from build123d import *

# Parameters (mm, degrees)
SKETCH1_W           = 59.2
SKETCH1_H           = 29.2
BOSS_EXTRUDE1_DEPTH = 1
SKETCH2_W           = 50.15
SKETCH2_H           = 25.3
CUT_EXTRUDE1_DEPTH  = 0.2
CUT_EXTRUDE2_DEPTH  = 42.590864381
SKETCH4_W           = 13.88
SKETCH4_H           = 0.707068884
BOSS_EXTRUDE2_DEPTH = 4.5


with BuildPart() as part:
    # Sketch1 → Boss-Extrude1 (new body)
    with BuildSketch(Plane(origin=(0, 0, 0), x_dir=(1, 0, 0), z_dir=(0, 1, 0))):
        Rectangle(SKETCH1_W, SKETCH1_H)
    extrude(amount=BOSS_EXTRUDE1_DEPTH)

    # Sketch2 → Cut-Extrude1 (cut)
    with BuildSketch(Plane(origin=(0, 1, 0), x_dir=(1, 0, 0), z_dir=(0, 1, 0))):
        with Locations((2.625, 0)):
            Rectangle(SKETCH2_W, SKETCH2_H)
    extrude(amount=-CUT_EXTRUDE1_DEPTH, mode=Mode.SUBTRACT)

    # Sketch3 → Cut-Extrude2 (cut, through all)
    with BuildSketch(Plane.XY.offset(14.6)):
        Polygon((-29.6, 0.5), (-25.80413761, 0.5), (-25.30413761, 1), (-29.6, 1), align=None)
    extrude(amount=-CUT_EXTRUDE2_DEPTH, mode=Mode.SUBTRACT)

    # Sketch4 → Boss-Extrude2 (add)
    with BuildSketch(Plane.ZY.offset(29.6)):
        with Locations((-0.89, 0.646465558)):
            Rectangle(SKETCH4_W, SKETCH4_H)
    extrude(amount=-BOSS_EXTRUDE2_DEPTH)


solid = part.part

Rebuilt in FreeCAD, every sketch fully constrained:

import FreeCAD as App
import Part
import Sketcher

V = App.Vector
Q = App.Units.Quantity


def add_polygon(sketch, points):
    """Adds a closed chain of lines whose ends are joined by coincident constraints."""
    first, n = sketch.GeometryCount, len(points)
    for a, b in zip(points, points[1:] + points[:1]):
        sketch.addGeometry(Part.LineSegment(App.Vector(*a, 0), App.Vector(*b, 0)), False)
    for i in range(n):
        sketch.addConstraint(Sketcher.Constraint("Coincident", first + i, 2, first + (i + 1) % n, 1))

doc = App.newDocument("Part")
params = doc.addObject("Spreadsheet::Sheet", "Params")
for row, (alias, value) in enumerate([
    ("sketch1_width", "59.2 mm"),
    ("sketch1_height", "29.2 mm"),
    ("pad1_length", "1 mm"),
    ("sketch2_height", "25.3 mm"),
    ("sketch2_width", "50.15 mm"),
    ("pocket1_length", "0.2 mm"),
    ("sketch3_height", "0.5 mm"),
    ("sketch4_height", "13.88 mm"),
    ("pad2_length", "4.5 mm"),
], start=1):
    params.set(f"A{row}", alias)
    params.set(f"B{row}", "=" + value)
    params.setAlias(f"B{row}", alias)

body = doc.addObject("PartDesign::Body", "Body")

sketch1 = doc.addObject("Sketcher::SketchObject", "Sketch")
body.addObject(sketch1)
sketch1.AttachmentSupport = (doc.XZ_Plane, [""])
sketch1.MapMode = "FlatFace"
add_polygon(sketch1, [(-30, -15), (-30, 15), (30, 15), (30, -15)])
sketch1.addConstraint(Sketcher.Constraint("Vertical", 0))
sketch1.addConstraint(Sketcher.Constraint("Horizontal", 1))
sketch1.addConstraint(Sketcher.Constraint("Vertical", 2))
sketch1.addConstraint(Sketcher.Constraint("Horizontal", 3))
sketch1.addConstraint(Sketcher.Constraint("Symmetric", 0, 2, 2, 2, -1, 1))
sketch1.addConstraint(Sketcher.Constraint("DistanceX", 1, 1, 1, 2, 59.2))
sketch1.addConstraint(Sketcher.Constraint("DistanceY", 0, 1, 0, 2, 29.2))
sketch1.setExpression("Constraints[9]", "Params.sketch1_width")
sketch1.setExpression("Constraints[10]", "Params.sketch1_height")
pad1 = doc.addObject("PartDesign::Pad", "Pad")
body.addObject(pad1)
pad1.Profile = sketch1
pad1.setExpression("Length", "Params.pad1_length")
pad1.Reversed = True

sketch2 = doc.addObject("Sketcher::SketchObject", "Sketch001")
body.addObject(sketch2)
sketch2.AttachmentSupport = (doc.XZ_Plane, [""])
sketch2.MapMode = "FlatFace"
sketch2.AttachmentOffset = App.Placement(V(0, 0, -1), App.Rotation())
add_polygon(sketch2, [(-22, -13), (-22, 13), (28, 13), (28, -13)])
sketch2.addConstraint(Sketcher.Constraint("Vertical", 0))
sketch2.addConstraint(Sketcher.Constraint("Horizontal", 1))
sketch2.addConstraint(Sketcher.Constraint("Vertical", 2))
sketch2.addConstraint(Sketcher.Constraint("Horizontal", 3))
sketch2.addConstraint(Sketcher.Constraint("DistanceY", 0, 1, 0, 2, 25.3))
sketch2.addConstraint(Sketcher.Constraint("DistanceX", 1, 1, 1, 2, 50.15))
sketch2.addConstraint(Sketcher.Constraint("DistanceX", -1, 1, 1, 2, 27.7))
sketch2.addConstraint(Sketcher.Constraint("DistanceY", -1, 1, 0, 2, 12.65))
sketch2.setExpression("Constraints[8]", "Params.sketch2_height")
sketch2.setExpression("Constraints[9]", "Params.sketch2_width")
pocket1 = doc.addObject("PartDesign::Pocket", "Pocket")
body.addObject(pocket1)
pocket1.Profile = sketch2
pocket1.setExpression("Length", "Params.pocket1_length")
pocket1.Reversed = True

sketch3 = doc.addObject("Sketcher::SketchObject", "Sketch002")
body.addObject(sketch3)
sketch3.AttachmentSupport = (doc.XY_Plane, [""])
sketch3.MapMode = "FlatFace"
sketch3.AttachmentOffset = App.Placement(V(0, 0, 14.6), App.Rotation())
add_polygon(sketch3, [(-29.6, 0.5), (-25.8, 0.5), (-25.3, 1), (-29.6, 1)])
sketch3.addConstraint(Sketcher.Constraint("Horizontal", 0))
sketch3.addConstraint(Sketcher.Constraint("Horizontal", 2))
sketch3.addConstraint(Sketcher.Constraint("Vertical", 3))
sketch3.addConstraint(Sketcher.Constraint("Angle", 1, Q("45 deg")))
sketch3.addConstraint(Sketcher.Constraint("DistanceY", 3, 2, 3, 1, 0.5))
sketch3.addConstraint(Sketcher.Constraint("DistanceY", -1, 1, 1, 2, 1.0))
sketch3.addConstraint(Sketcher.Constraint("DistanceX", 2, 2, -1, 1, 29.6))
sketch3.addConstraint(Sketcher.Constraint("DistanceX", 0, 1, 0, 2, 3.795862))
sketch3.setExpression("Constraints[8]", "Params.sketch3_height")
pocket2 = doc.addObject("PartDesign::Pocket", "Pocket001")
body.addObject(pocket2)
pocket2.Profile = sketch3
pocket2.Type = "ThroughAll"

sketch4 = doc.addObject("Sketcher::SketchObject", "Sketch003")
body.addObject(sketch4)
sketch4.AttachmentSupport = (doc.YZ_Plane, [""])
sketch4.MapMode = "FlatFace"
sketch4.AttachmentOffset = App.Placement(V(0, 0, -29.6), App.Rotation())
add_polygon(sketch4, [(1, -7.8), (0.3, -7.8), (0.3, 6), (1, 6)])
sketch4.addConstraint(Sketcher.Constraint("Horizontal", 0))
sketch4.addConstraint(Sketcher.Constraint("Vertical", 1))
sketch4.addConstraint(Sketcher.Constraint("Horizontal", 2))
sketch4.addConstraint(Sketcher.Constraint("Vertical", 3))
sketch4.addConstraint(Sketcher.Constraint("DistanceX", -1, 1, 2, 2, 1.0))
sketch4.addConstraint(Sketcher.Constraint("DistanceY", 1, 1, 1, 2, 13.88))
sketch4.addConstraint(Sketcher.Constraint("DistanceY", 0, 2, -1, 1, 7.83))
sketch4.addConstraint(Sketcher.Constraint("DistanceX", 0, 2, 0, 1, 0.707069))
sketch4.setExpression("Constraints[9]", "Params.sketch4_height")
pad2 = doc.addObject("PartDesign::Pad", "Pad001")
body.addObject(pad2)
pad2.Profile = sketch4
pad2.setExpression("Length", "Params.pad2_length")

doc.recompute()
